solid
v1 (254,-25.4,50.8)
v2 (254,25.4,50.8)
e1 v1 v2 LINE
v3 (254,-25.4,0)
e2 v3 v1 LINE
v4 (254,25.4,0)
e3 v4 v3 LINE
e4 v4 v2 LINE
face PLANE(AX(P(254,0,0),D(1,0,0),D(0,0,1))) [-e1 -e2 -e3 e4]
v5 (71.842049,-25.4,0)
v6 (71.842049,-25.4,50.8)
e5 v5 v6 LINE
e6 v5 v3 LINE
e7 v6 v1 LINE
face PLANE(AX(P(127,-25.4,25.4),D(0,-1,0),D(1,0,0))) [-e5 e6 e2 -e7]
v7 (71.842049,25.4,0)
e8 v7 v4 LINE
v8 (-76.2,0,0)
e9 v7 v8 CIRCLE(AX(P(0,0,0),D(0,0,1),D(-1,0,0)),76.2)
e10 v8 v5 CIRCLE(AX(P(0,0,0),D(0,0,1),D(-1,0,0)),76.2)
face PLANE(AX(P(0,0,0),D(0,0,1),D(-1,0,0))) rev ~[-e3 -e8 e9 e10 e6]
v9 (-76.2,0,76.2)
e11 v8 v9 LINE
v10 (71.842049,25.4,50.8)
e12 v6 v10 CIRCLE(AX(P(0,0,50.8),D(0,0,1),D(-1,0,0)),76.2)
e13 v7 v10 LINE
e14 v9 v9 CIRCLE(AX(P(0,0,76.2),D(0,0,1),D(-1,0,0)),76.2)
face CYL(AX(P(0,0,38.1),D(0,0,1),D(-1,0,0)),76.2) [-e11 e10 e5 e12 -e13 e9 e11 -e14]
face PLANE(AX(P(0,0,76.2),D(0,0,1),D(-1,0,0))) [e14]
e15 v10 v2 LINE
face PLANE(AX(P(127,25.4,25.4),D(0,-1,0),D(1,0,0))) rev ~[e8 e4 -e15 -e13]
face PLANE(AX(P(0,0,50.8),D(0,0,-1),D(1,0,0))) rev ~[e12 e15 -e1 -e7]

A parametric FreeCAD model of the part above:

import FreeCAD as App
import Part
import Sketcher
Q = App.Units.Quantity

doc = App.newDocument("Part")
body = doc.addObject("PartDesign::Body", "Body")

# Sketch on XZ plane
sketch1 = body.newObject("Sketcher::SketchObject", "Sketch")
sketch1.AttachmentSupport = (doc.getObject("XZ_Plane"), [""])
sketch1.MapMode = "FlatFace"
sketch1.addGeometry([
    Part.LineSegment(App.Vector(0, 51, 0), App.Vector(0, 0, 0)),
    Part.LineSegment(App.Vector(0, 0, 0), App.Vector(254, 0, 0)),
    Part.LineSegment(App.Vector(254, 0, 0), App.Vector(254, 51, 0)),
    Part.LineSegment(App.Vector(254, 51, 0), App.Vector(0, 51, 0)),
], False)
sketch1.addConstraint([
    Sketcher.Constraint("Coincident", 0, 2, 1, 1),
    Sketcher.Constraint("Coincident", 1, 2, 2, 1),
    Sketcher.Constraint("Coincident", 2, 2, 3, 1),
    Sketcher.Constraint("Coincident", 3, 2, 0, 1),
    Sketcher.Constraint("Vertical", 0),
    Sketcher.Constraint("Horizontal", 1),
    Sketcher.Constraint("Vertical", 2),
    Sketcher.Constraint("Horizontal", 3),
    Sketcher.Constraint("Coincident", 0, 2, -1, 1),
    Sketcher.Constraint("DistanceX", 1, 1, 1, 2, Q("10 in")),
    Sketcher.Constraint("DistanceY", 0, 2, 0, 1, Q("2 in")),
])
pad1 = body.newObject("PartDesign::Pad", "Pad")
pad1.Profile = sketch1
pad1.Length = Q("2 in")
pad1.Midplane = True

# Sketch on XZ plane
sketch2 = body.newObject("Sketcher::SketchObject", "Sketch001")
sketch2.AttachmentSupport = (doc.getObject("XZ_Plane"), [""])
sketch2.MapMode = "FlatFace"
sketch2.addGeometry([
    Part.LineSegment(App.Vector(-76, 76, 0), App.Vector(-76, 0, 0)),
    Part.LineSegment(App.Vector(-76, 0, 0), App.Vector(0, 0, 0)),
    Part.LineSegment(App.Vector(0, 0, 0), App.Vector(0, 76, 0)),
    Part.LineSegment(App.Vector(0, 76, 0), App.Vector(-76, 76, 0)),
], False)
sketch2.addConstraint([
    Sketcher.Constraint("Coincident", 0, 2, 1, 1),
    Sketcher.Constraint("Coincident", 1, 2, 2, 1),
    Sketcher.Constraint("Coincident", 2, 2, 3, 1),
    Sketcher.Constraint("Coincident", 3, 2, 0, 1),
    Sketcher.Constraint("Vertical", 0),
    Sketcher.Constraint("Horizontal", 1),
    Sketcher.Constraint("Vertical", 2),
    Sketcher.Constraint("Horizontal", 3),
    Sketcher.Constraint("Coincident", 1, 2, -1, 1),
    Sketcher.Constraint("Equal", 3, 0),
    Sketcher.Constraint("DistanceX", 1, 1, 1, 2, Q("3 in")),
])
revolution = body.newObject("PartDesign::Revolution", "Revolution")
revolution.Profile = sketch2
revolution.ReferenceAxis = (sketch2, ["V_Axis"])
revolution.Angle = 360

doc.recompute()
